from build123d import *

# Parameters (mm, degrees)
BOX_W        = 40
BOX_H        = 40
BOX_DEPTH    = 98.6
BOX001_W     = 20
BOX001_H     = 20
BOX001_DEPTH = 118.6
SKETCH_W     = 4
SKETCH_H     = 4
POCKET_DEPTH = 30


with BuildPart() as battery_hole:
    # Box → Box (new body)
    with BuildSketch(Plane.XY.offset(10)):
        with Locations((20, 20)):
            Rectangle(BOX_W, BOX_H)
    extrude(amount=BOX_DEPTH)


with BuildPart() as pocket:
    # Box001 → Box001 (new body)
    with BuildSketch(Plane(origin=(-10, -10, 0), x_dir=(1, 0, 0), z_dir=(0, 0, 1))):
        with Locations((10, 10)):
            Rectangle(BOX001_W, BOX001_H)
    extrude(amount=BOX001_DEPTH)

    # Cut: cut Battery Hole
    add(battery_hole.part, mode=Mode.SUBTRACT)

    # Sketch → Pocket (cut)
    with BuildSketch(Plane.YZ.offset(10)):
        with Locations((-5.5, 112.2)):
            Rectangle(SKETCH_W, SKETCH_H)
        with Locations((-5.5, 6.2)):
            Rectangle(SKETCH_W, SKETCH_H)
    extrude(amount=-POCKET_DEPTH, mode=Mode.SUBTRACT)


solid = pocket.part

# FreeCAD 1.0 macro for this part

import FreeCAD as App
import Part
import Sketcher

V = App.Vector


def add_polygon(sketch, points):
    """Adds a closed chain of lines whose ends are joined by coincident constraints."""
    first, n = sketch.GeometryCount, len(points)
    for a, b in zip(points, points[1:] + points[:1]):
        sketch.addGeometry(Part.LineSegment(App.Vector(*a, 0), App.Vector(*b, 0)), False)
    for i in range(n):
        sketch.addConstraint(Sketcher.Constraint("Coincident", first + i, 2, first + (i + 1) % n, 1))

doc = App.newDocument("Part")
body = doc.addObject("PartDesign::Body", "Body")

# Sketch on XY plane
sketch1 = body.newObject("Sketcher::SketchObject", "Sketch")
sketch1.AttachmentSupport = (doc.getObject("XY_Plane"), [""])
sketch1.MapMode = "FlatFace"
sketch1.AttachmentOffset = App.Placement(V(0, 0, 10), App.Rotation())
add_polygon(sketch1, [(0, 40), (0, 0), (40, 0), (40, 40)])  # lines 0-3
sketch1.addConstraint(Sketcher.Constraint("Vertical", 0))
sketch1.addConstraint(Sketcher.Constraint("Horizontal", 1))
sketch1.addConstraint(Sketcher.Constraint("Vertical", 2))
sketch1.addConstraint(Sketcher.Constraint("Horizontal", 3))
sketch1.addConstraint(Sketcher.Constraint("Coincident", 0, 2, -1, 1))
sketch1.addConstraint(Sketcher.Constraint("Equal", 3, 0))
sketch1.addConstraint(Sketcher.Constraint("DistanceX", 1, 1, 1, 2, 40.0))
pad1 = body.newObject("PartDesign::Pad", "Pad")
pad1.Profile = sketch1
pad1.Length = 98.6
body2 = doc.addObject("PartDesign::Body", "Body001")

# Sketch on XY plane
sketch2 = body2.newObject("Sketcher::SketchObject", "Sketch001")
sketch2.AttachmentSupport = (doc.getObject("XY_Plane001"), [""])
sketch2.MapMode = "FlatFace"
add_polygon(sketch2, [(-10, 10), (-10, -10), (10, -10), (10, 10)])  # lines 0-3
sketch2.addConstraint(Sketcher.Constraint("Vertical", 0))
sketch2.addConstraint(Sketcher.Constraint("Horizontal", 1))
sketch2.addConstraint(Sketcher.Constraint("Vertical", 2))
sketch2.addConstraint(Sketcher.Constraint("Horizontal", 3))
sketch2.addConstraint(Sketcher.Constraint("Symmetric", 0, 2, 2, 2, -1, 1))
sketch2.addConstraint(Sketcher.Constraint("Equal", 3, 0))
sketch2.addConstraint(Sketcher.Constraint("DistanceX", 1, 1, 1, 2, 20.0))
pad2 = body2.newObject("PartDesign::Pad", "Pad001")
pad2.Profile = sketch2
pad2.Length = 118.6
doc.recompute()

boolean = body2.newObject("PartDesign::Boolean", "Boolean")
boolean.Type = "Cut"
boolean.addObjects([body])

# Sketch on YZ plane
sketch3 = body2.newObject("Sketcher::SketchObject", "Sketch002")
sketch3.AttachmentSupport = (doc.getObject("YZ_Plane001"), [""])
sketch3.MapMode = "FlatFace"
sketch3.AttachmentOffset = App.Placement(V(0, 0, 10), App.Rotation())
add_polygon(sketch3, [(-7.5, 114.2), (-7.5, 110.2), (-3.5, 110.2), (-3.5, 114.2)])  # lines 0-3
add_polygon(sketch3, [(-7.5, 8.2), (-7.5, 4.2), (-3.5, 4.2), (-3.5, 8.2)])  # lines 4-7
sketch3.addConstraint(Sketcher.Constraint("Vertical", 0))
sketch3.addConstraint(Sketcher.Constraint("Horizontal", 1))
sketch3.addConstraint(Sketcher.Constraint("Vertical", 2))
sketch3.addConstraint(Sketcher.Constraint("Horizontal", 3))
sketch3.addConstraint(Sketcher.Constraint("Vertical", 4))
sketch3.addConstraint(Sketcher.Constraint("Horizontal", 5))
sketch3.addConstraint(Sketcher.Constraint("Vertical", 6))
sketch3.addConstraint(Sketcher.Constraint("Horizontal", 7))
sketch3.addConstraint(Sketcher.Constraint("Vertical", 3, 2, 4, 2))
sketch3.addConstraint(Sketcher.Constraint("Vertical", 2, 2, 5, 2))
sketch3.addConstraint(Sketcher.Constraint("Equal", 7, 0))
sketch3.addConstraint(Sketcher.Constraint("Equal", 2, 4))
sketch3.addConstraint(Sketcher.Constraint("DistanceX", 1, 1, 1, 2, 4.0))
sketch3.addConstraint(Sketcher.Constraint("DistanceY", 4, 2, 0, 2, 106.0))
sketch3.addConstraint(Sketcher.Constraint("DistanceX", 0, 2, -1, 1, 7.5))
sketch3.addConstraint(Sketcher.Constraint("DistanceY", -1, 1, 0, 2, 110.2))
pocket1 = body2.newObject("PartDesign::Pocket", "Pocket")
pocket1.Profile = sketch3
pocket1.Length = 30

doc.recompute()
